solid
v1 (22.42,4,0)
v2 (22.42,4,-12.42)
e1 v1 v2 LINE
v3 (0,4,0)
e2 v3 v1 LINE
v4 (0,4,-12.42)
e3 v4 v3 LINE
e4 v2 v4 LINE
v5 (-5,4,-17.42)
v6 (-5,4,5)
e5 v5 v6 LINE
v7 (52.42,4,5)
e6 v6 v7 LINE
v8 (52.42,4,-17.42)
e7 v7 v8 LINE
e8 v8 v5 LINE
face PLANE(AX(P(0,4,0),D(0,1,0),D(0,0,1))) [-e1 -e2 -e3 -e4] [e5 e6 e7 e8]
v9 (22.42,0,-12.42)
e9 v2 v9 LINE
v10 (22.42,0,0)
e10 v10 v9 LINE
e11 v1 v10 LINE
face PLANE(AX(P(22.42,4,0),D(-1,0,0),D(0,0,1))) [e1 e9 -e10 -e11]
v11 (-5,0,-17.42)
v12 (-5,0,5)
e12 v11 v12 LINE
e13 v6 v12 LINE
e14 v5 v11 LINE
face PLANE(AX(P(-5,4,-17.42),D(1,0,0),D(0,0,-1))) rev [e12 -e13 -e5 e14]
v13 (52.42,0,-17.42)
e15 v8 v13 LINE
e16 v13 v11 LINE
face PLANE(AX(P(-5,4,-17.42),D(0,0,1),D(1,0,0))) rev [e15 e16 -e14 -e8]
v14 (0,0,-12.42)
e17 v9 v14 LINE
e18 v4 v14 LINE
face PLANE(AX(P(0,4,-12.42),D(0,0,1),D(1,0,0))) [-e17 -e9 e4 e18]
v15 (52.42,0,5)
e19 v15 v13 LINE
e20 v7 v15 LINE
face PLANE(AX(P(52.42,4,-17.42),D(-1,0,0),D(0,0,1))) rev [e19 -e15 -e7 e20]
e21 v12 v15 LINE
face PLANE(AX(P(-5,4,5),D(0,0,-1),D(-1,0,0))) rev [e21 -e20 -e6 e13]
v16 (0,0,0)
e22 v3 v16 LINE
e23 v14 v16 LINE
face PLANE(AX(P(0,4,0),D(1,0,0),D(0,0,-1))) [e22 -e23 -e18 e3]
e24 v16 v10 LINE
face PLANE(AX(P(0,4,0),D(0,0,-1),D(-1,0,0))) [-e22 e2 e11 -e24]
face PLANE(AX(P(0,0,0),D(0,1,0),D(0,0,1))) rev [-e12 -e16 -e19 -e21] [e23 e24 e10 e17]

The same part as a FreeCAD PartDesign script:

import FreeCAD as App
import Part
import Sketcher
from FreeCAD import Vector
Q = App.Units.Quantity


def add_polygon(sketch, points):
    """Adds a closed chain of lines whose ends are joined by coincident constraints."""
    first, n = sketch.GeometryCount, len(points)
    for a, b in zip(points, points[1:] + points[:1]):
        sketch.addGeometry(Part.LineSegment(App.Vector(*a, 0), App.Vector(*b, 0)), False)
    for i in range(n):
        sketch.addConstraint(Sketcher.Constraint("Coincident", first + i, 2, first + (i + 1) % n, 1))

doc = App.newDocument("Part")
body = doc.addObject("PartDesign::Body", "Body")

sketch1 = body.newObject("Sketcher::SketchObject", "Sketch")
sketch1.AttachmentSupport = (doc.getObject("XZ_Plane"), [""])
sketch1.MapMode = "FlatFace"
add_polygon(sketch1, [(-5, -17.42), (-5, 5), (52.42, 5), (52.42, -17.42)])
add_polygon(sketch1, [(22.42, 0), (0, 0), (0, -12.42), (22.42, -12.42)])
sketch1.addConstraint([
    Sketcher.Constraint("Vertical", 0),
    Sketcher.Constraint("Horizontal", 1),
    Sketcher.Constraint("Vertical", 2),
    Sketcher.Constraint("Horizontal", 3),
    Sketcher.Constraint("Horizontal", 4),
    Sketcher.Constraint("Vertical", 5),
    Sketcher.Constraint("Horizontal", 6),
    Sketcher.Constraint("Vertical", 7),
    Sketcher.Constraint("Coincident", 4, 2, -1, 1),
    Sketcher.Constraint("Equal", 6, 0),
    Sketcher.Constraint("DistanceX", 0, 2, -1, 1, Q("5 mm")),
    Sketcher.Constraint("DistanceY", -1, 1, 0, 2, Q("5 mm")),
    Sketcher.Constraint("DistanceY", 3, 2, 5, 2, Q("5 mm")),
    Sketcher.Constraint("DistanceX", 6, 2, 2, 2, Q("30 mm")),
    Sketcher.Constraint("DistanceX", 1, 1, 1, 2, Q("57.42 mm")),
])
pad1 = body.newObject("PartDesign::Pad", "Pad")
pad1.Profile = sketch1
pad1.Length = 4
pad1.Reversed = True

doc.recompute()
